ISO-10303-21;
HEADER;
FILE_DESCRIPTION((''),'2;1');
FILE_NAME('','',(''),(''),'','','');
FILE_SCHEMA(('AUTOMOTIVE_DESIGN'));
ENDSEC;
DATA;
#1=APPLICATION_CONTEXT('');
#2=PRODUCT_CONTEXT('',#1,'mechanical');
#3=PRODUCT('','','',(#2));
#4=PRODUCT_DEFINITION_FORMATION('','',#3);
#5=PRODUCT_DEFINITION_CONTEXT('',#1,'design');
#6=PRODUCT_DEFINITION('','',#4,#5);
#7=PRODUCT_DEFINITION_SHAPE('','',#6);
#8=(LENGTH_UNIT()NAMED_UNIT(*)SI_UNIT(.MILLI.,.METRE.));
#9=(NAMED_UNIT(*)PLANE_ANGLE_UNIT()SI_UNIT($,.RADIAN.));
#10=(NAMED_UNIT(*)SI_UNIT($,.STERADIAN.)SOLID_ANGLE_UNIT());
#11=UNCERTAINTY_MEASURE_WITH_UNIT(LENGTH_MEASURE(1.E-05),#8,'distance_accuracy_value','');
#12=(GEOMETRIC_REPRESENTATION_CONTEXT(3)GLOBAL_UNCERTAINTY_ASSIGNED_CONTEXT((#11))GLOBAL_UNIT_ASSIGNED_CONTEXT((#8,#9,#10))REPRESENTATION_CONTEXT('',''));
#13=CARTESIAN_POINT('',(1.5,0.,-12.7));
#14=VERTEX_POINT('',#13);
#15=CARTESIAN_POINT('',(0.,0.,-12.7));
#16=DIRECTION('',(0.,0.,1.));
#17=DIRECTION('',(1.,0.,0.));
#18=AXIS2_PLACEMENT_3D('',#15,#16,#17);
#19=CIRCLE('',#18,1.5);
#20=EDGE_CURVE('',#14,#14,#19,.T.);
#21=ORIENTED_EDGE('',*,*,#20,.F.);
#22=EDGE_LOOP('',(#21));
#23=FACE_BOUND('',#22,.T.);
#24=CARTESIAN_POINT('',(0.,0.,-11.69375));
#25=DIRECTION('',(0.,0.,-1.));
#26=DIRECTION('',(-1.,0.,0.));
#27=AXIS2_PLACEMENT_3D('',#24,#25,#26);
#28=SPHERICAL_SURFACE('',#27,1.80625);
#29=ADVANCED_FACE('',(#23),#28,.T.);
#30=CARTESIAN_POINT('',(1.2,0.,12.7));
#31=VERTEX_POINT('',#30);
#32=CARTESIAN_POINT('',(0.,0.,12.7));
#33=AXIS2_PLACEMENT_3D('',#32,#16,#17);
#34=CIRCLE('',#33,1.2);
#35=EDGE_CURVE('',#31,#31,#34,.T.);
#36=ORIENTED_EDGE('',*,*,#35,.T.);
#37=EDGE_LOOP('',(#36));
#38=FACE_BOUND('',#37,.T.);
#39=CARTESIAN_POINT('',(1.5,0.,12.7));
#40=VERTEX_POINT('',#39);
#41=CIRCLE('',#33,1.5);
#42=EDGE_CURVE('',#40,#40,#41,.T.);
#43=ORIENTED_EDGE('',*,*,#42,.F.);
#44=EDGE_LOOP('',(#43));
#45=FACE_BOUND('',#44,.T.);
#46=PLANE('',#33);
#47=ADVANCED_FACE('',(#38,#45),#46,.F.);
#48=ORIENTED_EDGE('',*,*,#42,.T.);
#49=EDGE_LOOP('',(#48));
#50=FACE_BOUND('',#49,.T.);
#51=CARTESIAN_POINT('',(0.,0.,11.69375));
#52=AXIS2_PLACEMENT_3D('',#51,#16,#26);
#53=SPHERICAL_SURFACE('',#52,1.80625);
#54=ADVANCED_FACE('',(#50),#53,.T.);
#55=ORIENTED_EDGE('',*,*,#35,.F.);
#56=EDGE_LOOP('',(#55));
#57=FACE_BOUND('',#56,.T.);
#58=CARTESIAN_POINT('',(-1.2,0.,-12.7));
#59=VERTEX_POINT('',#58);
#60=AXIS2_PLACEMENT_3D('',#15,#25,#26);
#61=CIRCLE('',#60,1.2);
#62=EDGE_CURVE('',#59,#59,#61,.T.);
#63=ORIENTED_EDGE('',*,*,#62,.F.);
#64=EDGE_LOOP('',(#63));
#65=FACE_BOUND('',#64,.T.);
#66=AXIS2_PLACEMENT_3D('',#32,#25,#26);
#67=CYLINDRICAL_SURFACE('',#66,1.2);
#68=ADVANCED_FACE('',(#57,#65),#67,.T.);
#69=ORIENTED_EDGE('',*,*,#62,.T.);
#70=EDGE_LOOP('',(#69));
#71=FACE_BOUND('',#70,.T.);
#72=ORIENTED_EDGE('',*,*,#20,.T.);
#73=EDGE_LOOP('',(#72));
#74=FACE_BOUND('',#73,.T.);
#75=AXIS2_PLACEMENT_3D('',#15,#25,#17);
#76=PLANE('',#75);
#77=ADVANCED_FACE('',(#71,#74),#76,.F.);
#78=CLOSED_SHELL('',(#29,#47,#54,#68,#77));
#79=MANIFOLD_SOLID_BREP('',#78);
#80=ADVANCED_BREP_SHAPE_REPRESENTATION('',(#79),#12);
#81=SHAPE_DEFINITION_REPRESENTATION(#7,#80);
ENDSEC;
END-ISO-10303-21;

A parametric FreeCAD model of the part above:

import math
import FreeCAD as App
import Part
import Sketcher

V = App.Vector

doc = App.newDocument("Part")
body = doc.addObject("PartDesign::Body", "Body")

sketch1 = body.newObject("Sketcher::SketchObject", "Sketch")
sketch1.AttachmentSupport = (doc.getObject("XY_Plane"), [""])
sketch1.MapMode = "FlatFace"
sketch1.addGeometry(Part.Circle(V(0, 0, 0), V(0, 0, 1), 1.2), False)
sketch1.addConstraint([
    Sketcher.Constraint("Coincident", 0, 3, -1, 1),
    Sketcher.Constraint("Diameter", 0, 2.4),
])
pad1 = body.newObject("PartDesign::Pad", "Pad")
pad1.Profile = sketch1
pad1.Length = 25.4
pad1.Midplane = True

sketch2 = body.newObject("Sketcher::SketchObject", "Sketch001")
sketch2.AttachmentSupport = (doc.getObject("XZ_Plane"), [""])
sketch2.MapMode = "FlatFace"
sketch2.addGeometry([
    Part.LineSegment(V(0, 13.5, 0), V(0, 12.7, 0)),
    Part.LineSegment(V(0, 12.7, 0), V(-1.5, 12.7, 0)),
    Part.ArcOfCircle(Part.Circle(V(0, 11.69375, 0), V(0, 0, 1), 1.80625), math.radians(90), math.radians(146.144974)),
], False)
sketch2.addConstraint([
    Sketcher.Constraint("Coincident", 0, 2, 1, 1),
    Sketcher.Constraint("Coincident", 1, 2, 2, 2),
    Sketcher.Constraint("Coincident", 2, 1, 0, 1),
    Sketcher.Constraint("Vertical", 0),
    Sketcher.Constraint("Horizontal", 1),
    Sketcher.Constraint("PointOnObject", 2, 3, -2),
    Sketcher.Constraint("PointOnObject", 0, 2, -2),
    Sketcher.Constraint("DistanceX", 1, 2, 1, 1, 1.5),
    Sketcher.Constraint("DistanceY", 0, 2, 0, 1, 0.8),
    Sketcher.Constraint("DistanceY", -1, 1, 0, 2, 12.7),
])
revolution = body.newObject("PartDesign::Revolution", "Revolution")
revolution.Profile = sketch2
revolution.ReferenceAxis = (sketch2, ["V_Axis"])
revolution.Angle = 360
doc.recompute()

mirrored = body.newObject("PartDesign::Mirrored", "Mirrored")
mirrored.Originals = [revolution]
mirrored.MirrorPlane = (doc.getObject("XY_Plane"), [""])
body.Tip = mirrored

doc.recompute()
